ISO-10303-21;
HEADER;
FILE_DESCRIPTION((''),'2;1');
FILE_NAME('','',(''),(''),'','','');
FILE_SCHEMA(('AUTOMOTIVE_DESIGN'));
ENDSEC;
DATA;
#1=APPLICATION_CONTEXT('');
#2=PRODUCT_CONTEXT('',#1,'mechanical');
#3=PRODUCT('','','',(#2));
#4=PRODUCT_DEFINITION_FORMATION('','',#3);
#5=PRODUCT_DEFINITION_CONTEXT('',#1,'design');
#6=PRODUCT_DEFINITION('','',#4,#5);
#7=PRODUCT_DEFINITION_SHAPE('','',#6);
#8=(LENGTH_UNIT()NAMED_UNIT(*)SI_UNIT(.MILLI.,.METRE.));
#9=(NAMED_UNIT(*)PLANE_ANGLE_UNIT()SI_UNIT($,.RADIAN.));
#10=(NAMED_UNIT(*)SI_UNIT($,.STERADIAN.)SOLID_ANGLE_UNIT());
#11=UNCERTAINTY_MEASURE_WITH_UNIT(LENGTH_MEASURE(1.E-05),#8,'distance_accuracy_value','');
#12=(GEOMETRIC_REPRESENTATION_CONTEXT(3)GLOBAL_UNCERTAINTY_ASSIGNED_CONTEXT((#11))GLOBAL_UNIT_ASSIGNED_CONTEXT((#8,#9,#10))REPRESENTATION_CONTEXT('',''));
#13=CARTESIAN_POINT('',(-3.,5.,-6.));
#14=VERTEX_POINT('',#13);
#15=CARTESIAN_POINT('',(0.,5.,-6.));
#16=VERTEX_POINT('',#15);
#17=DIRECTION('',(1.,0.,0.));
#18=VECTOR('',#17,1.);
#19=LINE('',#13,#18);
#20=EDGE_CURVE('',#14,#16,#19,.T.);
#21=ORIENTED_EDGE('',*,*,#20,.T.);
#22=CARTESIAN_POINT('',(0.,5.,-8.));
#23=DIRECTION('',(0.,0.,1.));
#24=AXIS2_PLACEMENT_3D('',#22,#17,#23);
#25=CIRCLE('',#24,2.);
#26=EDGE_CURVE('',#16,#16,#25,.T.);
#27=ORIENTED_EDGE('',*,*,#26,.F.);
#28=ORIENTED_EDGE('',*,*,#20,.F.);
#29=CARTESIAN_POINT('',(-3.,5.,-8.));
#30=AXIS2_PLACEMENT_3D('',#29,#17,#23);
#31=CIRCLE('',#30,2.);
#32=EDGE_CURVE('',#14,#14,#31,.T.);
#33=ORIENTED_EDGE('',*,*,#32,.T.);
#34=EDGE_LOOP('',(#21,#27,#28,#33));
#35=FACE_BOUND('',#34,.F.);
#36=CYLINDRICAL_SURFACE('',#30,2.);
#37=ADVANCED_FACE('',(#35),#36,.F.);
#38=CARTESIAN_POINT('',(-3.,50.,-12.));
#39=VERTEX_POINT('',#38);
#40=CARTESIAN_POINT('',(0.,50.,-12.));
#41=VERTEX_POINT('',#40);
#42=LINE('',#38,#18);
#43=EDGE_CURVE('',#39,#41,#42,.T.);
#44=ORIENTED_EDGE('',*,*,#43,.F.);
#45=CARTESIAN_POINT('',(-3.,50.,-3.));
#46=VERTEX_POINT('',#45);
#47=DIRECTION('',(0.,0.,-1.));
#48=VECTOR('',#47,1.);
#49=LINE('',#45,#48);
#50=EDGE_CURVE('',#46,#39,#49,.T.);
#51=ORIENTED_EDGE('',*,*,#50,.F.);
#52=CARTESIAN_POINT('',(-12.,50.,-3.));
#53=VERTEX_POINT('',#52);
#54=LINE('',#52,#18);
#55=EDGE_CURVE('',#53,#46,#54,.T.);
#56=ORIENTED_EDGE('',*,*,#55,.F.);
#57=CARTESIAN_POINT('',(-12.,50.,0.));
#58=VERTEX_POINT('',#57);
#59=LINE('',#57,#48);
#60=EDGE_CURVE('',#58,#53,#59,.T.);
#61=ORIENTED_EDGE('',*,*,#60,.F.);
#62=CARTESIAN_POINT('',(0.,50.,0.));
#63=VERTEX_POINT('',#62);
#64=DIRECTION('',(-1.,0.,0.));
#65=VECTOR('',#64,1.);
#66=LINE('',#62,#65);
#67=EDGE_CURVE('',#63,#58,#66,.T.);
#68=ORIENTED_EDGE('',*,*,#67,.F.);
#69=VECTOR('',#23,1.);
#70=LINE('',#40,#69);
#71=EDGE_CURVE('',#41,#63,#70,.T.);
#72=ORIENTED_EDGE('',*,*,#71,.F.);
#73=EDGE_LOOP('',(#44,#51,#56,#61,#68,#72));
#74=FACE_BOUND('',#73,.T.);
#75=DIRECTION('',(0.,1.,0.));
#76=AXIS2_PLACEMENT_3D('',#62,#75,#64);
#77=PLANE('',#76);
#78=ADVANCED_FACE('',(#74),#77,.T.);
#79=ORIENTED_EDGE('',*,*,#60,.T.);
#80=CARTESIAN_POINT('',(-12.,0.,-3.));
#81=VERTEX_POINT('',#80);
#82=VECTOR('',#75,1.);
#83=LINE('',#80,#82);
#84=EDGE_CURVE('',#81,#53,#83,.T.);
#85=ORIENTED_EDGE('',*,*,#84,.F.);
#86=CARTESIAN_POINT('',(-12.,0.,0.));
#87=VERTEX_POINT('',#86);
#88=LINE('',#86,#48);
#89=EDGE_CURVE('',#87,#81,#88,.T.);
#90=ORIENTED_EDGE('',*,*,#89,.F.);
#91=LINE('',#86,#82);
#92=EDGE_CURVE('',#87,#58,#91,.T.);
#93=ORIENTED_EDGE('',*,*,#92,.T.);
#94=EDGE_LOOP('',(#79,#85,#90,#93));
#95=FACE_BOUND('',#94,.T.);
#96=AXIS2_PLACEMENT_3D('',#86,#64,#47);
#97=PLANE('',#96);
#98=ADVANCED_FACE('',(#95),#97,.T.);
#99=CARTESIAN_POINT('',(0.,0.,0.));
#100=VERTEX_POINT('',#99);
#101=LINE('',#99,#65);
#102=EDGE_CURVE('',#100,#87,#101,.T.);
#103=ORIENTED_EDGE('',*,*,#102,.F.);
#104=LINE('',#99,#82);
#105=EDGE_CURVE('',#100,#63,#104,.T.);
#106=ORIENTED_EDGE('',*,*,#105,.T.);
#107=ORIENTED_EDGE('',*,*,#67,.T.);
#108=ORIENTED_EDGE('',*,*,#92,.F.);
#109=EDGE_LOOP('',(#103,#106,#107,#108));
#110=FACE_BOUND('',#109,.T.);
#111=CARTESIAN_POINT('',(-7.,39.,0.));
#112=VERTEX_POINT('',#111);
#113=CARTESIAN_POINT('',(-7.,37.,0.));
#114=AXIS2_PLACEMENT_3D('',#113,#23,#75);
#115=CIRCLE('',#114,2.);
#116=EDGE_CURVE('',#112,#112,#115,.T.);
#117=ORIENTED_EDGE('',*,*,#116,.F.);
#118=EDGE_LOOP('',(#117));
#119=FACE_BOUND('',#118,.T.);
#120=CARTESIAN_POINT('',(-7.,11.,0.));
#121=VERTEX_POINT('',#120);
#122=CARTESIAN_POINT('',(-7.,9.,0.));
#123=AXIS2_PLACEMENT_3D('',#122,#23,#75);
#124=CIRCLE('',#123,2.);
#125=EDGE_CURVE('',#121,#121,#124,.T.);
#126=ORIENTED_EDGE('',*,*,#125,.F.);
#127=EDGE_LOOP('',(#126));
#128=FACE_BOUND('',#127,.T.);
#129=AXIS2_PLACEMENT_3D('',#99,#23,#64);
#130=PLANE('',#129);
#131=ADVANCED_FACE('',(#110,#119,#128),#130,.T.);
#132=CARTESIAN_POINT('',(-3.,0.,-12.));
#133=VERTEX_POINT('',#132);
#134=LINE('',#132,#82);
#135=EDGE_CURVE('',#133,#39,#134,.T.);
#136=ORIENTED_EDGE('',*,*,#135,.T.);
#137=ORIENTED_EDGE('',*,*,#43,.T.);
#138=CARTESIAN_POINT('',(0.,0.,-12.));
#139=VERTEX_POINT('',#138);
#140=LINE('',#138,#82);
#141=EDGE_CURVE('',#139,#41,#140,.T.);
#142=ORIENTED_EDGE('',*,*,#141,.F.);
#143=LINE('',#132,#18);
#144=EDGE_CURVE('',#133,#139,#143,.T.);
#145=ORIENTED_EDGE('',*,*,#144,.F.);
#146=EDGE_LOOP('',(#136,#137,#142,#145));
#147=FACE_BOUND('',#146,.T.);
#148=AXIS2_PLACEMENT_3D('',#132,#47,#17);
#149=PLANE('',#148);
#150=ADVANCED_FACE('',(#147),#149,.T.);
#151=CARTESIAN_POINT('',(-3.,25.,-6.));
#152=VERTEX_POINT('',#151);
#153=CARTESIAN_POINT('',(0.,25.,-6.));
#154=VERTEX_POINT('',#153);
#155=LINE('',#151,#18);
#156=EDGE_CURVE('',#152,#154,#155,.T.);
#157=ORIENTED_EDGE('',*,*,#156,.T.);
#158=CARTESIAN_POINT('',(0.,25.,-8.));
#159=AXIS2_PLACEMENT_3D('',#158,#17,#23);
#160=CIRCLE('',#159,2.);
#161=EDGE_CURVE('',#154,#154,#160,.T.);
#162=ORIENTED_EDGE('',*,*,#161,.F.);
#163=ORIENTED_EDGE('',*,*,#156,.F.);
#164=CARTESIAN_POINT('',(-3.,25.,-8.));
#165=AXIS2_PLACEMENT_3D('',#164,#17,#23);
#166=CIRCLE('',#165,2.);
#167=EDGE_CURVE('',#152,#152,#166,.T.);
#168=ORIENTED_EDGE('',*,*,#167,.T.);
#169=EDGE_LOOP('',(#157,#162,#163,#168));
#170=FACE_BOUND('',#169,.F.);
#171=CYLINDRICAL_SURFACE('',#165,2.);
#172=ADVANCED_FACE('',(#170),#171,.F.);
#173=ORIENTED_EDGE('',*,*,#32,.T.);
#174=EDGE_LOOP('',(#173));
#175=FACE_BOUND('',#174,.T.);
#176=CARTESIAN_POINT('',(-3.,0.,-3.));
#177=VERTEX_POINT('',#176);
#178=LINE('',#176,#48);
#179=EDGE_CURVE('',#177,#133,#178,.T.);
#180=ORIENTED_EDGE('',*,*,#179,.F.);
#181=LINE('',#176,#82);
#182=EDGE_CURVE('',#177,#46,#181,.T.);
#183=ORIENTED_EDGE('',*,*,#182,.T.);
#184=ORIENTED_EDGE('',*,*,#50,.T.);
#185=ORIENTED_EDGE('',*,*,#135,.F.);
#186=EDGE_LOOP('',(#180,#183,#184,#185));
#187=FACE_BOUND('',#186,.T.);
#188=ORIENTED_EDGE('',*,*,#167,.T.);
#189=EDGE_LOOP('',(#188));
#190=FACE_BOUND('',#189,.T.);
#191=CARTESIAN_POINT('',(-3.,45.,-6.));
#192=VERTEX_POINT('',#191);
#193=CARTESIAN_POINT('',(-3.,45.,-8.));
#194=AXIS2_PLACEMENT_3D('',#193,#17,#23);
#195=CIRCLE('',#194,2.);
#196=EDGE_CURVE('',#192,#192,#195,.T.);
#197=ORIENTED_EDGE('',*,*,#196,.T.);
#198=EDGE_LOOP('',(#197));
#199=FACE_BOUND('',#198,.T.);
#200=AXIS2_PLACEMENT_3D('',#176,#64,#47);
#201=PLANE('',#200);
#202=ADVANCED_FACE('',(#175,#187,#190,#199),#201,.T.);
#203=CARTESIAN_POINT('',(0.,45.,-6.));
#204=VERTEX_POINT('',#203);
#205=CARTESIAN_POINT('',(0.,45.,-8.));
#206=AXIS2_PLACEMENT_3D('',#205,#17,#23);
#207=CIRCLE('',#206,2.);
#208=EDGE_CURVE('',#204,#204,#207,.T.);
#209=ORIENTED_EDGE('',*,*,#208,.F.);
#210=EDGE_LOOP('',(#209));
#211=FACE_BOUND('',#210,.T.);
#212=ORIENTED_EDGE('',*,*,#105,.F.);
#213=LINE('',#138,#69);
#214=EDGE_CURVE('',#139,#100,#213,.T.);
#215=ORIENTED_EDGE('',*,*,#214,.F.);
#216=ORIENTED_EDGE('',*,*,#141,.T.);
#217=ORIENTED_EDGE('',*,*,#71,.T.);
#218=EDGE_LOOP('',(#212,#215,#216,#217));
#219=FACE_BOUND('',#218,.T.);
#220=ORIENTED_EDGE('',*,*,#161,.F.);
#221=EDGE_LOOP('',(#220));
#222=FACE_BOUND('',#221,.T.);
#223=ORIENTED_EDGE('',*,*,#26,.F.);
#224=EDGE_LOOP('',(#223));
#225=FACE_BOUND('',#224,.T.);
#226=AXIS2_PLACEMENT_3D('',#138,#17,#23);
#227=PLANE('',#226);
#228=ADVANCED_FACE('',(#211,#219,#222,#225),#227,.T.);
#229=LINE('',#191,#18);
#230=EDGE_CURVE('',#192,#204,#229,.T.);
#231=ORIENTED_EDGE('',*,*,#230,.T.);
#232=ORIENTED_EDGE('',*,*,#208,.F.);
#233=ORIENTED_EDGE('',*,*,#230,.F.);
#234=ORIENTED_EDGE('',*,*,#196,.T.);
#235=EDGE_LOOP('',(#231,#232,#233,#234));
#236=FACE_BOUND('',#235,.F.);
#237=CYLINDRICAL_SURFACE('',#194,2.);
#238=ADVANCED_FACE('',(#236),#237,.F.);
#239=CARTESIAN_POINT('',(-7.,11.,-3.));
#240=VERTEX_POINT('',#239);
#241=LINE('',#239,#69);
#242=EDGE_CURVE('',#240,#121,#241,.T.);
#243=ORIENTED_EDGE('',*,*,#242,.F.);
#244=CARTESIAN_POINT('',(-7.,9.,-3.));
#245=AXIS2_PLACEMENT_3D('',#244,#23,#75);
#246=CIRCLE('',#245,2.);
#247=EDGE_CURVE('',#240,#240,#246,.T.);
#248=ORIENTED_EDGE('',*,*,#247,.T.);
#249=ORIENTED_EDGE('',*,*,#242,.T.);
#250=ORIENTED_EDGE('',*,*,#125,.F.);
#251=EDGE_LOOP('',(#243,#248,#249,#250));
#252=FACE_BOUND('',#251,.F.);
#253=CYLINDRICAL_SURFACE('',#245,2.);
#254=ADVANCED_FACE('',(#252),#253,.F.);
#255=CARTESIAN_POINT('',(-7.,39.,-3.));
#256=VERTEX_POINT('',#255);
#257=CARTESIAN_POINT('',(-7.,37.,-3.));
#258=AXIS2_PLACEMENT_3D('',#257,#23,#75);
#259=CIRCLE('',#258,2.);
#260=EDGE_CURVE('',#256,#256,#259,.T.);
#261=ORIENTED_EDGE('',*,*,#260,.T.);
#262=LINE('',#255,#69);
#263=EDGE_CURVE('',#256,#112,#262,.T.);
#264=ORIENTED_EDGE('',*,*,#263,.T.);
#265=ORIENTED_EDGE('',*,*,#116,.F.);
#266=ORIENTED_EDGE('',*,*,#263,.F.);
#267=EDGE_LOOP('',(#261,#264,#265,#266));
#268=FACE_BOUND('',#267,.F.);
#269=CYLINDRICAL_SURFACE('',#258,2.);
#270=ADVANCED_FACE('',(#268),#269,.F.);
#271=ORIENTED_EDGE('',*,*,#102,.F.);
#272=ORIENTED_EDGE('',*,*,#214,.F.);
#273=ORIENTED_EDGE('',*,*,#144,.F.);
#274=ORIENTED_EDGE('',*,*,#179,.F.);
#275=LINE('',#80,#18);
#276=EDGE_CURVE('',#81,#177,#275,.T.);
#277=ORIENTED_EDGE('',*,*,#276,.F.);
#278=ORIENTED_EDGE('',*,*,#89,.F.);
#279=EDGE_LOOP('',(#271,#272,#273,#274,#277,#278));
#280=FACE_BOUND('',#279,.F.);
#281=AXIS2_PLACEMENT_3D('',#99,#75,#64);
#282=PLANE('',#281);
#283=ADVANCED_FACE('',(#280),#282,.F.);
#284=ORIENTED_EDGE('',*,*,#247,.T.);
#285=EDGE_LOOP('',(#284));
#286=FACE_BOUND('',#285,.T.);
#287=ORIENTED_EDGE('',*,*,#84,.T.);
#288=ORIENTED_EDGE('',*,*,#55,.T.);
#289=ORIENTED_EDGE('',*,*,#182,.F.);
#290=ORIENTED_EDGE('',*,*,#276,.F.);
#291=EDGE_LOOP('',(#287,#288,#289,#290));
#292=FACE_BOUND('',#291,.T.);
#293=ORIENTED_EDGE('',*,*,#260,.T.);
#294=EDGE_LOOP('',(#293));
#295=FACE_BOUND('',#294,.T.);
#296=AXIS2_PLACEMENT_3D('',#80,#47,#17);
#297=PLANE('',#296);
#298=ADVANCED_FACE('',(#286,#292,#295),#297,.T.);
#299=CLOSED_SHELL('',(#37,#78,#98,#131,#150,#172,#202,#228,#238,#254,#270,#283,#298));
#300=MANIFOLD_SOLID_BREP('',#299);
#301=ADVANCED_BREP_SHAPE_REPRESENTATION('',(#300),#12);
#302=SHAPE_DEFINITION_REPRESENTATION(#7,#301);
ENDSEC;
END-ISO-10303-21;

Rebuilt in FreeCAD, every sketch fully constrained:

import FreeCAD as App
import Part
import Sketcher


def add_polygon(sketch, points):
    """Adds a closed chain of lines whose ends are joined by coincident constraints."""
    first, n = sketch.GeometryCount, len(points)
    for a, b in zip(points, points[1:] + points[:1]):
        sketch.addGeometry(Part.LineSegment(App.Vector(*a, 0), App.Vector(*b, 0)), False)
    for i in range(n):
        sketch.addConstraint(Sketcher.Constraint("Coincident", first + i, 2, first + (i + 1) % n, 1))

doc = App.newDocument("Part")
body = doc.addObject("PartDesign::Body", "Body")

sketch1 = body.newObject("Sketcher::SketchObject", "Sketch")
sketch1.AttachmentSupport = (doc.getObject("XZ_Plane"), [""])
sketch1.MapMode = "FlatFace"
add_polygon(sketch1, [(-12, 0), (0, 0), (0, -12), (-3, -12), (-3, -3), (-12, -3)])
sketch1.addConstraint([
    Sketcher.Constraint("Horizontal", 0),
    Sketcher.Constraint("Vertical", 1),
    Sketcher.Constraint("Horizontal", 2),
    Sketcher.Constraint("Vertical", 3),
    Sketcher.Constraint("Horizontal", 4),
    Sketcher.Constraint("Vertical", 5),
    Sketcher.Constraint("Coincident", 0, 2, -1, 1),
    Sketcher.Constraint("Equal", 0, 1),
    Sketcher.Constraint("Equal", 4, 3),
    Sketcher.Constraint("DistanceX", 0, 1, 0, 2, 12.0),
    Sketcher.Constraint("DistanceX", 2, 2, 2, 1, 3.0),
])
pad1 = body.newObject("PartDesign::Pad", "Pad")
pad1.Profile = sketch1
pad1.Length = 50
pad1.Reversed = True

sketch2 = body.newObject("Sketcher::SketchObject", "Sketch001")
sketch2.AttachmentSupport = (doc.getObject("YZ_Plane"), [""])
sketch2.MapMode = "FlatFace"
sketch2.AttachmentOffset = App.Placement(App.Vector(0, 0, -3), App.Rotation())
sketch2.addGeometry([
    Part.Circle(App.Vector(45, -8, 0), App.Vector(0, 0, 1), 2),
    Part.Circle(App.Vector(5, -8, 0), App.Vector(0, 0, 1), 2),
    Part.Circle(App.Vector(25, -8, 0), App.Vector(0, 0, 1), 2),
], False)
sketch2.addConstraint([
    Sketcher.Constraint("Equal", 0, 1),
    Sketcher.Constraint("Equal", 1, 2),
    Sketcher.Constraint("Horizontal", 0, 3, 1, 3),
    Sketcher.Constraint("Horizontal", 1, 3, 2, 3),
    Sketcher.Constraint("Diameter", 0, 4.0),
    Sketcher.Constraint("DistanceX", -1, 1, 0, 3, 45.0),
    Sketcher.Constraint("DistanceY", 0, 3, -1, 1, 8.0),
    Sketcher.Constraint("DistanceX", -1, 1, 1, 3, 5.0),
    Sketcher.Constraint("DistanceX", -1, 1, 2, 3, 25.0),
])
doc.recompute()
hole = body.newObject("PartDesign::Hole", "Hole")
hole.Profile = sketch2
hole.ThreadType = "None"
hole.Diameter = 4
hole.DepthType = "ThroughAll"
hole.Reversed = True

sketch3 = body.newObject("Sketcher::SketchObject", "Sketch002")
sketch3.AttachmentSupport = (doc.getObject("XY_Plane"), [""])
sketch3.MapMode = "FlatFace"
sketch3.AttachmentOffset = App.Placement(App.Vector(0, 0, -3), App.Rotation())
sketch3.addGeometry([
    Part.Circle(App.Vector(-7, 9, 0), App.Vector(0, 0, 1), 2),
    Part.Circle(App.Vector(-7, 37, 0), App.Vector(0, 0, 1), 2),
], False)
sketch3.addConstraint([
    Sketcher.Constraint("Equal", 0, 1),
    Sketcher.Constraint("Vertical", 0, 3, 1, 3),
    Sketcher.Constraint("Diameter", 0, 4.0),
    Sketcher.Constraint("DistanceX", 0, 3, -1, 1, 7.0),
    Sketcher.Constraint("DistanceY", -1, 1, 0, 3, 9.0),
    Sketcher.Constraint("DistanceY", -1, 1, 1, 3, 37.0),
])
doc.recompute()
hole2 = body.newObject("PartDesign::Hole", "Hole001")
hole2.Profile = sketch3
hole2.ThreadType = "None"
hole2.Diameter = 4
hole2.DepthType = "ThroughAll"
hole2.Reversed = True

doc.recompute()
